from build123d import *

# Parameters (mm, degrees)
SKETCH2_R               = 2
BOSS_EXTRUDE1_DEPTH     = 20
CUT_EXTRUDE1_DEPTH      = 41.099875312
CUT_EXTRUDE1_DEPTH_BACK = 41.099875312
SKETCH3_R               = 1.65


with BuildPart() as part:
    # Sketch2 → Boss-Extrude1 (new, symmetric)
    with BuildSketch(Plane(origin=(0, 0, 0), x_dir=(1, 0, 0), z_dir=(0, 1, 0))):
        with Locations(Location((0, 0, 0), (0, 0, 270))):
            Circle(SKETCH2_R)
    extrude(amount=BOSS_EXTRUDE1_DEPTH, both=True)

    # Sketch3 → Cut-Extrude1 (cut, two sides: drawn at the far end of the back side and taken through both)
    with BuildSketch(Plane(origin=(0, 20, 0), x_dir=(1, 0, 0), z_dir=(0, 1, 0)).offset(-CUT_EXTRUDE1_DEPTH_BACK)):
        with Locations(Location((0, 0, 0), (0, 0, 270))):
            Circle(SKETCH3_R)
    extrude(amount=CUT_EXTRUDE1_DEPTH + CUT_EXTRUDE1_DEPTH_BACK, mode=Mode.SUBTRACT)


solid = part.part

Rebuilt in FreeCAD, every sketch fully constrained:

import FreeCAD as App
import Part
import Sketcher
from FreeCAD import Vector

doc = App.newDocument("Part")
body = doc.addObject("PartDesign::Body", "Body")

# Sketch on XZ plane
sketch1 = body.newObject("Sketcher::SketchObject", "Sketch")
sketch1.AttachmentSupport = (doc.getObject("XZ_Plane"), [""])
sketch1.MapMode = "FlatFace"
sketch1.addGeometry(Part.Circle(Vector(0, 0, 0), Vector(0, 0, 1), 2), False)
sketch1.addConstraint([
    Sketcher.Constraint("Coincident", 0, 3, -1, 1),
    Sketcher.Constraint("Diameter", 0, 4.0),
])
pad1 = body.newObject("PartDesign::Pad", "Pad")
pad1.Profile = sketch1
pad1.Length = 40
pad1.Midplane = True

# Sketch on XZ plane
sketch2 = body.newObject("Sketcher::SketchObject", "Sketch001")
sketch2.AttachmentSupport = (doc.getObject("XZ_Plane"), [""])
sketch2.MapMode = "FlatFace"
sketch2.AttachmentOffset = App.Placement(Vector(0, 0, -20), App.Rotation())
sketch2.addGeometry(Part.Circle(Vector(0, 0, 0), Vector(0, 0, 1), 1.6), False)
sketch2.addConstraint([
    Sketcher.Constraint("Coincident", 0, 3, -1, 1),
    Sketcher.Constraint("Diameter", 0, 3.3),
])
pocket1 = body.newObject("PartDesign::Pocket", "Pocket")
pocket1.Profile = sketch2
pocket1.Type = "ThroughAll"
pocket1.Midplane = True

doc.recompute()
